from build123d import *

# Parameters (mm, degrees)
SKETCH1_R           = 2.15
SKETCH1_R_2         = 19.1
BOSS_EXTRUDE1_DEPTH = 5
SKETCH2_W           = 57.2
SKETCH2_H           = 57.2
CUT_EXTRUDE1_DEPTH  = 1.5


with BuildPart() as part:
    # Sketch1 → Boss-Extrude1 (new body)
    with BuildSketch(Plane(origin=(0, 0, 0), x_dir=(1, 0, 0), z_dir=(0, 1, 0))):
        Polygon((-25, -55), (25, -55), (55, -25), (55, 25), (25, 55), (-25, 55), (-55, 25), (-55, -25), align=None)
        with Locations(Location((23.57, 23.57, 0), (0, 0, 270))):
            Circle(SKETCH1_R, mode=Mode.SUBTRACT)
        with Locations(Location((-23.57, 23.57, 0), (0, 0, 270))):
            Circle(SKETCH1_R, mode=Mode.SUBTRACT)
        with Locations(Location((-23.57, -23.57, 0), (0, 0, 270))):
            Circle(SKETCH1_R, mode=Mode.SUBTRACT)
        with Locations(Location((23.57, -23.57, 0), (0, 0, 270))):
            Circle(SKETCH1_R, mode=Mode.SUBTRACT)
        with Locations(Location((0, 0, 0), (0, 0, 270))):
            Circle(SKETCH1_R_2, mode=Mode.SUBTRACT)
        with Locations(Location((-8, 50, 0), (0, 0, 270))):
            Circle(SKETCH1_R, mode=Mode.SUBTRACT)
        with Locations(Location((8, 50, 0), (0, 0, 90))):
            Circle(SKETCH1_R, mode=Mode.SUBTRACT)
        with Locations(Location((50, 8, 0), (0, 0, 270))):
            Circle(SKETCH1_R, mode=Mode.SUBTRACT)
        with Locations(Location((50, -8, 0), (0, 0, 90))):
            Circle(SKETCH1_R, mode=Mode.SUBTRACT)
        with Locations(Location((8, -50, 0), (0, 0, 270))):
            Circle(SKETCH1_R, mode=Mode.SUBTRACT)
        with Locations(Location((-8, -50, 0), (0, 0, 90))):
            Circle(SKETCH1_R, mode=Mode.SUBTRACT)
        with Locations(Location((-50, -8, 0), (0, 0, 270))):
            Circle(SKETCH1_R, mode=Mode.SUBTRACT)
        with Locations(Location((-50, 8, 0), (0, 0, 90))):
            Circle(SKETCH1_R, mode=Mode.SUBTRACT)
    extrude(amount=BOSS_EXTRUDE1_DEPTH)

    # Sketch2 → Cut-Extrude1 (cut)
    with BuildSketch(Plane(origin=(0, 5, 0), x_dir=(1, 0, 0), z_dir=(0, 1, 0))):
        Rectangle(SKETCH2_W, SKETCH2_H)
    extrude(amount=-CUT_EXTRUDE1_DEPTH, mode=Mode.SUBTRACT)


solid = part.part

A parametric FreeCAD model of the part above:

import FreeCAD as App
import Part
import Sketcher

V = App.Vector


def add_polygon(sketch, points):
    """Adds a closed chain of lines whose ends are joined by coincident constraints."""
    first, n = sketch.GeometryCount, len(points)
    for a, b in zip(points, points[1:] + points[:1]):
        sketch.addGeometry(Part.LineSegment(App.Vector(*a, 0), App.Vector(*b, 0)), False)
    for i in range(n):
        sketch.addConstraint(Sketcher.Constraint("Coincident", first + i, 2, first + (i + 1) % n, 1))

doc = App.newDocument("Part")
params = doc.addObject("Spreadsheet::Sheet", "Params")
for row, (alias, value) in enumerate([
    ("sketch1_diameter", "4.3 mm"),
    ("sketch1_diameter2", "38.2 mm"),
    ("sketch1_width", "50 mm"),
    ("pad1_length", "5 mm"),
    ("sketch2_width", "57.2 mm"),
    ("pocket1_length", "1.5 mm"),
], start=1):
    params.set(f"A{row}", alias)
    params.set(f"B{row}", "=" + value)
    params.setAlias(f"B{row}", alias)

body = doc.addObject("PartDesign::Body", "Body")

# Sketch on XZ plane
sketch1 = body.newObject("Sketcher::SketchObject", "Sketch")
sketch1.AttachmentSupport = (doc.getObject("XZ_Plane"), [""])
sketch1.MapMode = "FlatFace"
add_polygon(sketch1, [(-25, 55), (25, 55), (55, 25), (55, -25), (25, -55), (-25, -55), (-55, -25), (-55, 25)])  # lines 0-7
sketch1.addGeometry(Part.Circle(V(-8, 50, 0), V(0, 0, 1), 2.1), False)  # 8
sketch1.addGeometry(Part.Circle(V(-50, 8, 0), V(0, 0, 1), 2.1), False)  # 9
sketch1.addGeometry(Part.Circle(V(-23.6, 23.6, 0), V(0, 0, 1), 2.1), False)  # 10
sketch1.addGeometry(Part.Circle(V(8, 50, 0), V(0, 0, 1), 2.1), False)  # 11
sketch1.addGeometry(Part.Circle(V(23.6, 23.6, 0), V(0, 0, 1), 2.1), False)  # 12
sketch1.addGeometry(Part.Circle(V(50, 8, 0), V(0, 0, 1), 2.1), False)  # 13
sketch1.addGeometry(Part.Circle(V(-50, -8, 0), V(0, 0, 1), 2.1), False)  # 14
sketch1.addGeometry(Part.Circle(V(-23.6, -23.6, 0), V(0, 0, 1), 2.1), False)  # 15
sketch1.addGeometry(Part.Circle(V(-8, -50, 0), V(0, 0, 1), 2.1), False)  # 16
sketch1.addGeometry(Part.Circle(V(0, 0, 0), V(0, 0, 1), 19.1), False)  # 17
sketch1.addGeometry(Part.Circle(V(23.6, -23.6, 0), V(0, 0, 1), 2.1), False)  # 18
sketch1.addGeometry(Part.Circle(V(50, -8, 0), V(0, 0, 1), 2.1), False)  # 19
sketch1.addGeometry(Part.Circle(V(8, -50, 0), V(0, 0, 1), 2.1), False)  # 20
sketch1.addConstraint(Sketcher.Constraint("Horizontal", 0))
sketch1.addConstraint(Sketcher.Constraint("Vertical", 2))
sketch1.addConstraint(Sketcher.Constraint("Horizontal", 4))
sketch1.addConstraint(Sketcher.Constraint("Vertical", 6))
sketch1.addConstraint(Sketcher.Constraint("Coincident", 17, 3, -1, 1))
sketch1.addConstraint(Sketcher.Constraint("Equal", 8, 9))
sketch1.addConstraint(Sketcher.Constraint("Equal", 9, 10))
sketch1.addConstraint(Sketcher.Constraint("Equal", 10, 11))
sketch1.addConstraint(Sketcher.Constraint("Equal", 11, 12))
sketch1.addConstraint(Sketcher.Constraint("Equal", 12, 13))
sketch1.addConstraint(Sketcher.Constraint("Equal", 13, 14))
sketch1.addConstraint(Sketcher.Constraint("Equal", 14, 15))
sketch1.addConstraint(Sketcher.Constraint("Equal", 15, 16))
sketch1.addConstraint(Sketcher.Constraint("Equal", 16, 18))
sketch1.addConstraint(Sketcher.Constraint("Equal", 18, 19))
sketch1.addConstraint(Sketcher.Constraint("Equal", 19, 20))
sketch1.addConstraint(Sketcher.Constraint("Symmetric", 13, 3, 14, 3, -1, 1))
sketch1.addConstraint(Sketcher.Constraint("Symmetric", 12, 3, 15, 3, -1, 1))
sketch1.addConstraint(Sketcher.Constraint("Symmetric", 11, 3, 16, 3, -1, 1))
sketch1.addConstraint(Sketcher.Constraint("Symmetric", 10, 3, 18, 3, -1, 1))
sketch1.addConstraint(Sketcher.Constraint("Symmetric", 9, 3, 19, 3, -1, 1))
sketch1.addConstraint(Sketcher.Constraint("Symmetric", 8, 3, 20, 3, -1, 1))
sketch1.addConstraint(Sketcher.Constraint("Symmetric", 0, 2, 4, 2, -1, 1))
sketch1.addConstraint(Sketcher.Constraint("Symmetric", 1, 2, 5, 2, -1, 1))
sketch1.addConstraint(Sketcher.Constraint("Symmetric", 8, 3, 11, 3, -2))
sketch1.addConstraint(Sketcher.Constraint("Symmetric", 10, 3, 12, 3, -2))
sketch1.addConstraint(Sketcher.Constraint("Symmetric", 9, 3, 13, 3, -2))
sketch1.addConstraint(Sketcher.Constraint("Perpendicular", 1, 3))
sketch1.addConstraint(Sketcher.Constraint("Perpendicular", 5, 7))
sketch1.addConstraint(Sketcher.Constraint("Horizontal", 2, 2, 5, 2))
sketch1.addConstraint(Sketcher.Constraint("Horizontal", 1, 2, 6, 2))
sketch1.addConstraint(Sketcher.Constraint("Vertical", 0, 2, 3, 2))
sketch1.addConstraint(Sketcher.Constraint("Equal", 4, 2))
sketch1.addConstraint(Sketcher.Constraint("Diameter", 8, 4.3))
sketch1.addConstraint(Sketcher.Constraint("Diameter", 17, 38.2))
sketch1.addConstraint(Sketcher.Constraint("DistanceX", 0, 1, 0, 2, 50.0))
sketch1.addConstraint(Sketcher.Constraint("DistanceX", 8, 3, -1, 1, 8.0))
sketch1.addConstraint(Sketcher.Constraint("DistanceY", -1, 1, 8, 3, 50.0))
sketch1.addConstraint(Sketcher.Constraint("DistanceX", 9, 3, -1, 1, 50.0))
sketch1.addConstraint(Sketcher.Constraint("DistanceY", -1, 1, 9, 3, 8.0))
sketch1.addConstraint(Sketcher.Constraint("DistanceY", -1, 1, 0, 2, 55.0))
sketch1.addConstraint(Sketcher.Constraint("DistanceX", 10, 3, -1, 1, 23.57))
sketch1.addConstraint(Sketcher.Constraint("DistanceY", -1, 1, 10, 3, 23.57))
sketch1.setExpression("Constraints[41]", "Params.sketch1_diameter")
sketch1.setExpression("Constraints[42]", "Params.sketch1_diameter2")
sketch1.setExpression("Constraints[43]", "Params.sketch1_width")
pad1 = body.newObject("PartDesign::Pad", "Pad")
pad1.Profile = sketch1
pad1.setExpression("Length", "Params.pad1_length")
pad1.Reversed = True

# Sketch on XZ plane
sketch2 = body.newObject("Sketcher::SketchObject", "Sketch001")
sketch2.AttachmentSupport = (doc.getObject("XZ_Plane"), [""])
sketch2.MapMode = "FlatFace"
sketch2.AttachmentOffset = App.Placement(V(0, 0, -5), App.Rotation())
add_polygon(sketch2, [(-29, -29), (-29, 29), (29, 29), (29, -29)])  # lines 0-3
sketch2.addConstraint(Sketcher.Constraint("Vertical", 0))
sketch2.addConstraint(Sketcher.Constraint("Horizontal", 1))
sketch2.addConstraint(Sketcher.Constraint("Vertical", 2))
sketch2.addConstraint(Sketcher.Constraint("Horizontal", 3))
sketch2.addConstraint(Sketcher.Constraint("Symmetric", 0, 2, 2, 2, -1, 1))
sketch2.addConstraint(Sketcher.Constraint("Equal", 3, 0))
sketch2.addConstraint(Sketcher.Constraint("DistanceX", 1, 1, 1, 2, 57.2))
sketch2.setExpression("Constraints[10]", "Params.sketch2_width")
pocket1 = body.newObject("PartDesign::Pocket", "Pocket")
pocket1.Profile = sketch2
pocket1.setExpression("Length", "Params.pocket1_length")
pocket1.Reversed = True

doc.recompute()
